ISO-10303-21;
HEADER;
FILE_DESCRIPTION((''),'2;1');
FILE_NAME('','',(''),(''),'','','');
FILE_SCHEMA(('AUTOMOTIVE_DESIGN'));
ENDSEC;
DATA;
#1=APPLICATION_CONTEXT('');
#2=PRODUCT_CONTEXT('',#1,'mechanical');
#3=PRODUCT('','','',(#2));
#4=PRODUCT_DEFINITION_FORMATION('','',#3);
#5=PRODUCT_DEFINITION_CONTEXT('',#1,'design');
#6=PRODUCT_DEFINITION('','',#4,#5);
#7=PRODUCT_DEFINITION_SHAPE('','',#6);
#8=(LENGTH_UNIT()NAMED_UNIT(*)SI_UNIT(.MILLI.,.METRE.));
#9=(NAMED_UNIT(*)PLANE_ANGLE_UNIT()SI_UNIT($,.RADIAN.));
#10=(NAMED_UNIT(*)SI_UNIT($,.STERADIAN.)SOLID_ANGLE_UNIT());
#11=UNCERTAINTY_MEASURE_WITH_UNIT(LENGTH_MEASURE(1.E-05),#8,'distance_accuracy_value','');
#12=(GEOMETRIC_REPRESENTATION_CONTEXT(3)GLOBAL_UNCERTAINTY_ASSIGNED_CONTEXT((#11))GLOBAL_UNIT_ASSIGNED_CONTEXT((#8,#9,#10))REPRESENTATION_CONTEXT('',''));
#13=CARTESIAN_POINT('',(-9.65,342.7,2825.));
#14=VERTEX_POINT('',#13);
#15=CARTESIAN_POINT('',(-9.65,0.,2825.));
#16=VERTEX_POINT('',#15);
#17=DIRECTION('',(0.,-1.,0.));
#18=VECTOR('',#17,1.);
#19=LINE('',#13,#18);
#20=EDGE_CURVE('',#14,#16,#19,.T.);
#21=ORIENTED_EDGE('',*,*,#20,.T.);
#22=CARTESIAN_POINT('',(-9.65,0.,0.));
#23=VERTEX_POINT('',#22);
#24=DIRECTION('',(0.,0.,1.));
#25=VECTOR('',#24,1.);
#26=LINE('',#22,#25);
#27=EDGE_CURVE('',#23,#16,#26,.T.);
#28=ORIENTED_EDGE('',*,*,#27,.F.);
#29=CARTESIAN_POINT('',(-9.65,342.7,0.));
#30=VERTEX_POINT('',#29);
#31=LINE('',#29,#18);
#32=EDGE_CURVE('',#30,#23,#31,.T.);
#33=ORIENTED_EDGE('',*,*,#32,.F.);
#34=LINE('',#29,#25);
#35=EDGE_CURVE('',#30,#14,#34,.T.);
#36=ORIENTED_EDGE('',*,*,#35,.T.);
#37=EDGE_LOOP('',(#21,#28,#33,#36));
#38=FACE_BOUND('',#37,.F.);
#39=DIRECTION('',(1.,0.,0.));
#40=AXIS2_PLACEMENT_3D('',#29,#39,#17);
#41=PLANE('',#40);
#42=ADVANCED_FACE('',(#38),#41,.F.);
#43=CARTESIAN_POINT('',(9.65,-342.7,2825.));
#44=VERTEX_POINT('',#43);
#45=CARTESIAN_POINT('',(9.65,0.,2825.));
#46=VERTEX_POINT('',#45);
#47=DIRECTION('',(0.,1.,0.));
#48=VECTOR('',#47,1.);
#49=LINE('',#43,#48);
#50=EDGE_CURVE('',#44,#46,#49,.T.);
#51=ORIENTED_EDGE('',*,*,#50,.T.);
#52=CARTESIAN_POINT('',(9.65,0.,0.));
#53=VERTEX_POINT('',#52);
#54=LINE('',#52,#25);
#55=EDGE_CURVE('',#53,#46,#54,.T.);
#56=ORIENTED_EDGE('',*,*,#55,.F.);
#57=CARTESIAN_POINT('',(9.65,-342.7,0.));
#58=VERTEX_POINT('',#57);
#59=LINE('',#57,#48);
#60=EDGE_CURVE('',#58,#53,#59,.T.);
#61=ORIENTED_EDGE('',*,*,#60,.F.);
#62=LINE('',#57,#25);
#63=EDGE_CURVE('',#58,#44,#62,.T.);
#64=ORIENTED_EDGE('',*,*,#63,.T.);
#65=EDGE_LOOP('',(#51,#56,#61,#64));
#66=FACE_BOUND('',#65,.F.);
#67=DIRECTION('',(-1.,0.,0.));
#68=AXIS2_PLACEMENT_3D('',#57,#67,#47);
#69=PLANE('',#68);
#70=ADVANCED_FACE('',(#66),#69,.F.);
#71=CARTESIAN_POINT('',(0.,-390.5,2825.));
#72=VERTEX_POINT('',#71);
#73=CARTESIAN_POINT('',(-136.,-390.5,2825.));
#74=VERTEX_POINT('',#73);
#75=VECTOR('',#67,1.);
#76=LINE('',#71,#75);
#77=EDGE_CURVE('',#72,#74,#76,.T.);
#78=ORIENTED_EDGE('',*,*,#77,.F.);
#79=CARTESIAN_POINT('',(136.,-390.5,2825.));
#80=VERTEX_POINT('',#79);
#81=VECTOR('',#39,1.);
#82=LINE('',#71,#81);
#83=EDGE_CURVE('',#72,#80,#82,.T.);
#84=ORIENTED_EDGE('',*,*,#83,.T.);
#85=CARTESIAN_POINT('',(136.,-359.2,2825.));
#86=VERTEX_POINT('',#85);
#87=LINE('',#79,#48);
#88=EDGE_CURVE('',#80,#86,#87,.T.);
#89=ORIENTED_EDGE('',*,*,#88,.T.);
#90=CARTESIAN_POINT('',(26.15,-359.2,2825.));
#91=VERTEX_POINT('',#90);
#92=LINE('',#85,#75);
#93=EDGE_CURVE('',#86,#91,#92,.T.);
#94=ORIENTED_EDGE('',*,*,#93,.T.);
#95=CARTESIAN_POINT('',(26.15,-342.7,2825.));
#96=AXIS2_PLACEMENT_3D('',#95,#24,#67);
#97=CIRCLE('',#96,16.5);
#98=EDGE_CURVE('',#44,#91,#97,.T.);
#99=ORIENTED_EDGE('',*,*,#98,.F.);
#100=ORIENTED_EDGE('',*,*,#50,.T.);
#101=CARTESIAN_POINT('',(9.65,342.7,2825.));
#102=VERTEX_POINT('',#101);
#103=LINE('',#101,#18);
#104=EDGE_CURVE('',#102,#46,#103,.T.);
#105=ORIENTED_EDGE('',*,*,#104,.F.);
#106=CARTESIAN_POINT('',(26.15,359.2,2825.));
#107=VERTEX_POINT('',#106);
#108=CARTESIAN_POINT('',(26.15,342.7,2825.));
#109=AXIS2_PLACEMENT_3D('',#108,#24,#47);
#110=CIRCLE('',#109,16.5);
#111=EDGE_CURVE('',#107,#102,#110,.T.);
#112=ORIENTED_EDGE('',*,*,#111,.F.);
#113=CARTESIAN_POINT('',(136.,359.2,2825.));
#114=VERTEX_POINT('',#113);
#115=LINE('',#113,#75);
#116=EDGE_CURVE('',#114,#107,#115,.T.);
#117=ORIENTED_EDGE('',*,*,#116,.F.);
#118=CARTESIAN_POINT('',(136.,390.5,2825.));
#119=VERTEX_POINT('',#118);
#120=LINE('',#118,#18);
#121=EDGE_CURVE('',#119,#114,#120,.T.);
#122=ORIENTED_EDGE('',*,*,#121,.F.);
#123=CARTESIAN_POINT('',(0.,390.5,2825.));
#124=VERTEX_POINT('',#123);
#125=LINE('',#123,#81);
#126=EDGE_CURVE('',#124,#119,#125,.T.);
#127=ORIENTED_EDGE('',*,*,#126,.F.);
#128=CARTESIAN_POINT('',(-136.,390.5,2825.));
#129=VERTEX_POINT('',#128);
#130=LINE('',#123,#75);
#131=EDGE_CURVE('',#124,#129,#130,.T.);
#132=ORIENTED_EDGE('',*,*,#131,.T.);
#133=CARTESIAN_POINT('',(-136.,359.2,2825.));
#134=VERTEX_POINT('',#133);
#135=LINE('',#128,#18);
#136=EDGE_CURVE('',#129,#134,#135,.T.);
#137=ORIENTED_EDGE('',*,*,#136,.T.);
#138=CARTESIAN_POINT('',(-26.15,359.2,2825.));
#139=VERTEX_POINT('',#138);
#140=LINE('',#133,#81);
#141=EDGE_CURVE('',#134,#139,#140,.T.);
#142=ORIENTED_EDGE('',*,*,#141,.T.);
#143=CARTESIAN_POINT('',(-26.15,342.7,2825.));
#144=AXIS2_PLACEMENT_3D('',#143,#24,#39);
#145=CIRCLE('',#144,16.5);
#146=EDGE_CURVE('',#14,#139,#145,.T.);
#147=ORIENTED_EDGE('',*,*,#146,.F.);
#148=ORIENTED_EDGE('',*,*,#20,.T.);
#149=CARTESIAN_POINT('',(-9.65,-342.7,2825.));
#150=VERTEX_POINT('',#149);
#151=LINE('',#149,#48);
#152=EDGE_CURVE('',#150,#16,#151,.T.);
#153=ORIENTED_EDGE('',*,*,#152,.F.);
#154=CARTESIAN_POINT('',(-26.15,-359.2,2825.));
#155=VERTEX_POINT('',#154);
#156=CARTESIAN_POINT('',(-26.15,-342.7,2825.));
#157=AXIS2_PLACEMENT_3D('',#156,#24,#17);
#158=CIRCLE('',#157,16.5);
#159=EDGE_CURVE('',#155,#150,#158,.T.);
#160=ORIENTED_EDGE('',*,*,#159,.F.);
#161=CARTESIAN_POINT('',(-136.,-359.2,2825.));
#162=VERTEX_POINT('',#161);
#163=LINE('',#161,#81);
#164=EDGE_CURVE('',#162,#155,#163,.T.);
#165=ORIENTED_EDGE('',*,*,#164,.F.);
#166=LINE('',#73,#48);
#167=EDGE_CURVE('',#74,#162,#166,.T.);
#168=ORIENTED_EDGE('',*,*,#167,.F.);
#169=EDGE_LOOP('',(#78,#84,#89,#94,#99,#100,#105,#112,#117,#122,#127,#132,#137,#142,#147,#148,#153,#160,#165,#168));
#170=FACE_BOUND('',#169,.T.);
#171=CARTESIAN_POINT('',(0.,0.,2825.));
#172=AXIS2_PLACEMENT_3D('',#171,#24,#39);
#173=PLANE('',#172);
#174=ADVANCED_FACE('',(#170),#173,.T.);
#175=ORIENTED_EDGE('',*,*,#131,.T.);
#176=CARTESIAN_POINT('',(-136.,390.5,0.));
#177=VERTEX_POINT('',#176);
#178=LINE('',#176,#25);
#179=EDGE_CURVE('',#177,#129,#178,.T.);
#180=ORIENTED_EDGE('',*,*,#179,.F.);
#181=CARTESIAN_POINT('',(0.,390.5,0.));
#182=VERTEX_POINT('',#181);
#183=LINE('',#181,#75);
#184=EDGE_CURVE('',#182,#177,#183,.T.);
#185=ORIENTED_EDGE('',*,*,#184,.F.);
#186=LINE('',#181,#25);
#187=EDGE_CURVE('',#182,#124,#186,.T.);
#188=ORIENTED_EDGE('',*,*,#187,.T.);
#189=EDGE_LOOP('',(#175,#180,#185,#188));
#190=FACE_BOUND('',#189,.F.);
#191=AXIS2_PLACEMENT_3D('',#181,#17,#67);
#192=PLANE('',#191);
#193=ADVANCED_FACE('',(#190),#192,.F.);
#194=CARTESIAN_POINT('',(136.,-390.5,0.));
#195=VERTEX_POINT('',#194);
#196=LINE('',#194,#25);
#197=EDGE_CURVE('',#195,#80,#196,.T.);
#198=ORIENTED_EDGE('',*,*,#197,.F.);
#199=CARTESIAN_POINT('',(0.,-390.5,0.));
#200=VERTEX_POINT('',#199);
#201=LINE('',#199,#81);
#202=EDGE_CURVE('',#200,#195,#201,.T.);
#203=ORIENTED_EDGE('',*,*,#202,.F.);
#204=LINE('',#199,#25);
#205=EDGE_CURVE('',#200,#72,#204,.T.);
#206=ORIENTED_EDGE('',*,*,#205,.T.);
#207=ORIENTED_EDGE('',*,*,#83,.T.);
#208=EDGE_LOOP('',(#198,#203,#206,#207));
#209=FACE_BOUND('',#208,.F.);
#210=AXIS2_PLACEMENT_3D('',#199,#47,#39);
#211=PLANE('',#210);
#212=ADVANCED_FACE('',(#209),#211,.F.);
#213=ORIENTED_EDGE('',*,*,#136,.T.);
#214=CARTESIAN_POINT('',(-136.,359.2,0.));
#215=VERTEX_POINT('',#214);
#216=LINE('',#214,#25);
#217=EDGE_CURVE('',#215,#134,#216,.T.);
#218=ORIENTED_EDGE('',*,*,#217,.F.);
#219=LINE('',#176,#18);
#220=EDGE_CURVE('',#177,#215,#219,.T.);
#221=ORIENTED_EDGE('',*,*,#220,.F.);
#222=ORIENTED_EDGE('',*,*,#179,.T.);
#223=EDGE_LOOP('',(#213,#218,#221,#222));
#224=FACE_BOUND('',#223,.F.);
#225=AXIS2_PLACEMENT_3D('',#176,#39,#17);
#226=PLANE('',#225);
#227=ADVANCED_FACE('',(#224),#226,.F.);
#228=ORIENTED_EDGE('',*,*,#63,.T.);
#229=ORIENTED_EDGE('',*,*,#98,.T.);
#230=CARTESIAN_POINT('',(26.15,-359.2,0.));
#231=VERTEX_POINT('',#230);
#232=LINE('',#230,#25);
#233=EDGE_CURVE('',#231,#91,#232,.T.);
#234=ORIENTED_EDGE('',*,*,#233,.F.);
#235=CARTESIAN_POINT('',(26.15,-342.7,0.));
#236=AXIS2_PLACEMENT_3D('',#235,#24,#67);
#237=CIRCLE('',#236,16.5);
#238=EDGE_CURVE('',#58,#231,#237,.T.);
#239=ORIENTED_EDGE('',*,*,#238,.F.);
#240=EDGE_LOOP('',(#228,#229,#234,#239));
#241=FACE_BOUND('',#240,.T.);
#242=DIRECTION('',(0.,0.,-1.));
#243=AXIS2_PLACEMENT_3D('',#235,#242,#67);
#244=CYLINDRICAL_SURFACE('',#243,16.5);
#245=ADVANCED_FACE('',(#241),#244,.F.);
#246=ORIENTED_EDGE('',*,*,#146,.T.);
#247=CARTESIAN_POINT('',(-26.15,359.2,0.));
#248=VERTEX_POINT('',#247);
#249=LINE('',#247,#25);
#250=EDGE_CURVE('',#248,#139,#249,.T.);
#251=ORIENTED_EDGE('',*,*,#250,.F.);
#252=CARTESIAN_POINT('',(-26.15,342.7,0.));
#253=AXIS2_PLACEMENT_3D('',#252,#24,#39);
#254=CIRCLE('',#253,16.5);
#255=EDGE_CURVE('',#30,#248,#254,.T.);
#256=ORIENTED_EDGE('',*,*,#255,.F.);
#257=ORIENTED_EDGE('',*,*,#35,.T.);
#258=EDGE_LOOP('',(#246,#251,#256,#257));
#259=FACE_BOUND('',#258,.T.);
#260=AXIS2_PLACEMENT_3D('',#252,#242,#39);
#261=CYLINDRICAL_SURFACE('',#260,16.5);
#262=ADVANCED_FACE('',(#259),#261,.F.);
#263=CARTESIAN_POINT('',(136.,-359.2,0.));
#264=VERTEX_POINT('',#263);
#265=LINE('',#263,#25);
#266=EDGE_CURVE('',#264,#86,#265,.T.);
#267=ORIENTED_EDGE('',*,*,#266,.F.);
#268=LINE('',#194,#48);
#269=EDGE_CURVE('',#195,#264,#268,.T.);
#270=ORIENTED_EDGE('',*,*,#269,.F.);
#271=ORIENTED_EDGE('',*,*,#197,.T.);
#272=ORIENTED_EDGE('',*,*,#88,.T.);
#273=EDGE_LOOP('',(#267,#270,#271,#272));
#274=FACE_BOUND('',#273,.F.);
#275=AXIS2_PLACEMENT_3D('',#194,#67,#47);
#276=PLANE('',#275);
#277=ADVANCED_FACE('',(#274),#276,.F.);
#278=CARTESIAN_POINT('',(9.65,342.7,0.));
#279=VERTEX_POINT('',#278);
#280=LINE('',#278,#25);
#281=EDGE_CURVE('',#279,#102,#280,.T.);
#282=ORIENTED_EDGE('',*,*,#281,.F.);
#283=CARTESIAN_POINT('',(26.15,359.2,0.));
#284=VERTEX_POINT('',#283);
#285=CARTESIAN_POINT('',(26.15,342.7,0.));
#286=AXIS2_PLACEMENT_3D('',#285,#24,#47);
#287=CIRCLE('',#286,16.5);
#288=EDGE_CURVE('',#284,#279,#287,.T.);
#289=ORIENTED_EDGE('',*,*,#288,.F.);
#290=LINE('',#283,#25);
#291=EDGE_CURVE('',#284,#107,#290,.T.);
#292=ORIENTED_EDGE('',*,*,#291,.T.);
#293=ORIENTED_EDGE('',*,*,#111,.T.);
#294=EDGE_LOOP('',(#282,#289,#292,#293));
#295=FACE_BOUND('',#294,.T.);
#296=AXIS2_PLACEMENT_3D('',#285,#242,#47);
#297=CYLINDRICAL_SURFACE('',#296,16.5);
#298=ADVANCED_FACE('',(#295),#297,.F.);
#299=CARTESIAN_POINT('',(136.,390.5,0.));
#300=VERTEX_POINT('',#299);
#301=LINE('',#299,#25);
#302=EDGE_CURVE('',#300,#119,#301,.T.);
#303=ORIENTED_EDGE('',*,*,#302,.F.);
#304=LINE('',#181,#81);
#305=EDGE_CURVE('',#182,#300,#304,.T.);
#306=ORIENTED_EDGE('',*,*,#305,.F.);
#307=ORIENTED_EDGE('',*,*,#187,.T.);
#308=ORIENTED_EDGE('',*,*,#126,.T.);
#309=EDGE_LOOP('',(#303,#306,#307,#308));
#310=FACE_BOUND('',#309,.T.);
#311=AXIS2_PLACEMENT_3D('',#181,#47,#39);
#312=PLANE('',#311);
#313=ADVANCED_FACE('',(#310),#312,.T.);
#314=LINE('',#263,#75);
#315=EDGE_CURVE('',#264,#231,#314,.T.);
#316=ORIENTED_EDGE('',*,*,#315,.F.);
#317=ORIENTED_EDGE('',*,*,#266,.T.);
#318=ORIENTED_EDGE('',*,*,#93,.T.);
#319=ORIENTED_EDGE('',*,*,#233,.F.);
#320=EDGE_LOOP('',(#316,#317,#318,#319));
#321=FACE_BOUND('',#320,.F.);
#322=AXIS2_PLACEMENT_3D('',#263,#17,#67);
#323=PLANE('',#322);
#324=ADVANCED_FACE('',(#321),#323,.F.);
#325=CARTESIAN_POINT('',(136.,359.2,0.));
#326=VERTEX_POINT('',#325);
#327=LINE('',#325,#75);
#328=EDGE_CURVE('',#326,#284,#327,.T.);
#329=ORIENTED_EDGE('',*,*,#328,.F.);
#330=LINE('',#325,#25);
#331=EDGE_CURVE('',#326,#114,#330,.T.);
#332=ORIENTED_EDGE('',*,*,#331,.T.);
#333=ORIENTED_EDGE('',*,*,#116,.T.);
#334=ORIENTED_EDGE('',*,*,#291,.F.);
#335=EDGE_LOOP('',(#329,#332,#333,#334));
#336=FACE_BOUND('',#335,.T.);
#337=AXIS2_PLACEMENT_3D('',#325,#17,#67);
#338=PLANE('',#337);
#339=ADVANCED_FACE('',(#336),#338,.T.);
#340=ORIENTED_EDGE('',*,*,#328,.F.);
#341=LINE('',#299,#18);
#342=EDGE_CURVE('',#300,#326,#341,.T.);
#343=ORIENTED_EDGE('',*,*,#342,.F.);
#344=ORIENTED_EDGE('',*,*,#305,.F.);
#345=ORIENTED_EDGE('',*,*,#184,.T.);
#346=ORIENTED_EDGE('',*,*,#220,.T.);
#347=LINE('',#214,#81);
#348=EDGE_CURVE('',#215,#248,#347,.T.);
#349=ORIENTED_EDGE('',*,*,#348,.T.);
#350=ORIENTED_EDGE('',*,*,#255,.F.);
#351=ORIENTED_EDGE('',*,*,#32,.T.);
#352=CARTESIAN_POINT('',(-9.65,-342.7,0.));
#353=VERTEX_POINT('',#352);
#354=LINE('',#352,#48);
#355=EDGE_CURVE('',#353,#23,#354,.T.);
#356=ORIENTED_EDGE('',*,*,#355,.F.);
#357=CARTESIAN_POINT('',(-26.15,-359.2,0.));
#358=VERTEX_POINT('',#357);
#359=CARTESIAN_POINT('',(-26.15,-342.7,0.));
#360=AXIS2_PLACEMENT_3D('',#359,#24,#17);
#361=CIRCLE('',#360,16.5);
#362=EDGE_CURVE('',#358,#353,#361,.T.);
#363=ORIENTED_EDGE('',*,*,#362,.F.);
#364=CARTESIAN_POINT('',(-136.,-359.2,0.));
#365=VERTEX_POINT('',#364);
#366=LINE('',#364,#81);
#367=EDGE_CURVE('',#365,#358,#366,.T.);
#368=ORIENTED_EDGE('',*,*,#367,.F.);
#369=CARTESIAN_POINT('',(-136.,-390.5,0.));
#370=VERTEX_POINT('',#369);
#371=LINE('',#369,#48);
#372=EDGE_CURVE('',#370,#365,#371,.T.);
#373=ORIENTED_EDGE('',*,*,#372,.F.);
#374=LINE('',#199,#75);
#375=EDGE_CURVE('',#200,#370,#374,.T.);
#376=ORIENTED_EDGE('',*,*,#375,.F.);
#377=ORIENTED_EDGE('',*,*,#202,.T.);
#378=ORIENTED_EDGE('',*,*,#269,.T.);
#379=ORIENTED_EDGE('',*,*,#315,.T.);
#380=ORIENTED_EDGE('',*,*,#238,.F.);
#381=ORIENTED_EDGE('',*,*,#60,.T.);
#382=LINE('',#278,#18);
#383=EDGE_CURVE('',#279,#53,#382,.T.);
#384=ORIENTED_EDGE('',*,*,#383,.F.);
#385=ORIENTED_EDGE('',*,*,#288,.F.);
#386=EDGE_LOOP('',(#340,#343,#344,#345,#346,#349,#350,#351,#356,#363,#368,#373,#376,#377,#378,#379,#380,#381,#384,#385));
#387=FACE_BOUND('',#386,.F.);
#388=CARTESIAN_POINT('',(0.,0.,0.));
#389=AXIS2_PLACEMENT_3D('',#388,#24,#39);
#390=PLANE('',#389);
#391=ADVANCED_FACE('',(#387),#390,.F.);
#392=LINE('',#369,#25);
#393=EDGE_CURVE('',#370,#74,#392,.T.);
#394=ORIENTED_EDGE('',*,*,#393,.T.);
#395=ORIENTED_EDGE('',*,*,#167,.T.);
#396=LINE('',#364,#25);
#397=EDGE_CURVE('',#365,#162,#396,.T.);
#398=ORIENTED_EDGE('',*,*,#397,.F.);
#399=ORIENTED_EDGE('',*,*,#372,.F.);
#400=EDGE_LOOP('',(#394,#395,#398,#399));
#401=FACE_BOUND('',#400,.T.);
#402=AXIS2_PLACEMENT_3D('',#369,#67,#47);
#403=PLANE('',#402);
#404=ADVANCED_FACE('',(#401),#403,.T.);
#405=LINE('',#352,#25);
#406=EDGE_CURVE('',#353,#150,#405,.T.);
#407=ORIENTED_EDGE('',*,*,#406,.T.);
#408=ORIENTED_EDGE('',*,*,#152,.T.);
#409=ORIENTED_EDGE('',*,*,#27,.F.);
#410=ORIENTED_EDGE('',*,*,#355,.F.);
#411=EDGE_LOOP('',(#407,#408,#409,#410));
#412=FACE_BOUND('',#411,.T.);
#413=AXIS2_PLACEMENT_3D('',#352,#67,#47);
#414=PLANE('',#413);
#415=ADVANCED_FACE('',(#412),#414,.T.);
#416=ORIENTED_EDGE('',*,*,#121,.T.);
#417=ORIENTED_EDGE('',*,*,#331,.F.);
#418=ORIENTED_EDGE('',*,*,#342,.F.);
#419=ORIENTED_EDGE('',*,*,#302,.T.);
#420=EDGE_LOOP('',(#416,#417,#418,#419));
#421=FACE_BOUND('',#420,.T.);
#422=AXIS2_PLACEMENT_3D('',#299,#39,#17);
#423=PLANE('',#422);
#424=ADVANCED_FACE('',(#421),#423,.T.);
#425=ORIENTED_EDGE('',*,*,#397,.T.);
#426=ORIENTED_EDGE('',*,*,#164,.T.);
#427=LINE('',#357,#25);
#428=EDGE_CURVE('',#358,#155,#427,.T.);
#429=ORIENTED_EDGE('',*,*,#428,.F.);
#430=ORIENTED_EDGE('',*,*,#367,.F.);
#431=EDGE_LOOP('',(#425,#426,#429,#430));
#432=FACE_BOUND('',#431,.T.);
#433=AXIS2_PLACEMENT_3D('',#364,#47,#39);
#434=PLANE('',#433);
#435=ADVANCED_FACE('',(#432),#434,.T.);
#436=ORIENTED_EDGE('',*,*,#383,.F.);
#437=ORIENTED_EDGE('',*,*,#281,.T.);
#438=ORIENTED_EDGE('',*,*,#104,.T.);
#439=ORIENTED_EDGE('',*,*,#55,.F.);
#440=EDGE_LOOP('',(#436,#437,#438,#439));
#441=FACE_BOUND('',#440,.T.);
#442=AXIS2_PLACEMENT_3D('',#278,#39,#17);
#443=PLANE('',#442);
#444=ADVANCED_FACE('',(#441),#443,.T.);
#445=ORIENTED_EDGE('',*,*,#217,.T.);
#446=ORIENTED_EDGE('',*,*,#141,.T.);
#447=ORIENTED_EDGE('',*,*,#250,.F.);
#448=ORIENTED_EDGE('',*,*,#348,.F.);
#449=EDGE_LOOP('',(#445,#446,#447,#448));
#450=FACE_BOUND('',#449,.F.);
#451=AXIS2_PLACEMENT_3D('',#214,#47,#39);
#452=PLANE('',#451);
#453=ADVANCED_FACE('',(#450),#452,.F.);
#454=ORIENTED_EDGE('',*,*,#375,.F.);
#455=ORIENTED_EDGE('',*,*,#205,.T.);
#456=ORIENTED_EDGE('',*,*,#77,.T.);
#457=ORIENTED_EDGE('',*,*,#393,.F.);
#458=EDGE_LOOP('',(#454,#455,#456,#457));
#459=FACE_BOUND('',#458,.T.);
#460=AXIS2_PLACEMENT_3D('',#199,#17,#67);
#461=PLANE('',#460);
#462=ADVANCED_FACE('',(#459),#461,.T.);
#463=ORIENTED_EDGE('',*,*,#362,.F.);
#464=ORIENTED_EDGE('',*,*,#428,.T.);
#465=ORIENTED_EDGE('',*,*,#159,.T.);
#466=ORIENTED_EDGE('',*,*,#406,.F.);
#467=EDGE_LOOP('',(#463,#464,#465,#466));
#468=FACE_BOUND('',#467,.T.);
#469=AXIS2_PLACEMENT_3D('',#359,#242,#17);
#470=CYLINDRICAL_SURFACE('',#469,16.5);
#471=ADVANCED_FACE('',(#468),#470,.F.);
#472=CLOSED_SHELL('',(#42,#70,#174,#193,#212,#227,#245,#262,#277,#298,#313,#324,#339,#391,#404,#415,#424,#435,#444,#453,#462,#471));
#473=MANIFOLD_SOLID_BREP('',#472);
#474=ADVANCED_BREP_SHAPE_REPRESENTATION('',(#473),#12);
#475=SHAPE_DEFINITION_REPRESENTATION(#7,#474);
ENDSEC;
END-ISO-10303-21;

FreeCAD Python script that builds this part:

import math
import FreeCAD as App
import Part
import Sketcher
from FreeCAD import Vector

doc = App.newDocument("Part")
params = doc.addObject("Spreadsheet::Sheet", "Params")
for row, (alias, value) in enumerate([
    ("sketch1_radius", "16.5 mm"),
    ("sketch1_height", "31.3 mm"),
    ("pad1_length", "2825 mm"),
], start=1):
    params.set(f"A{row}", alias)
    params.set(f"B{row}", "=" + value)
    params.setAlias(f"B{row}", alias)

body = doc.addObject("PartDesign::Body", "Body")

# Sketch on XY plane
sketch1 = body.newObject("Sketcher::SketchObject", "Sketch")
sketch1.AttachmentSupport = (doc.getObject("XY_Plane"), [""])
sketch1.MapMode = "FlatFace"
sketch1.addGeometry([
    Part.LineSegment(Vector(-136, -359.2, 0), Vector(-136, -390.5, 0)),  # 0
    Part.LineSegment(Vector(-136, -390.5, 0), Vector(136, -390.5, 0)),  # 1
    Part.LineSegment(Vector(136, -390.5, 0), Vector(136, -359.2, 0)),  # 2
    Part.LineSegment(Vector(136, -359.2, 0), Vector(26.15, -359.2, 0)),  # 3
    Part.ArcOfCircle(Part.Circle(Vector(26.15, -342.7, 0), Vector(0, 0, 1), 16.5), math.radians(180), math.radians(270)),  # 4
    Part.LineSegment(Vector(9.65, -342.7, 0), Vector(9.65, 342.7, 0)),  # 5
    Part.ArcOfCircle(Part.Circle(Vector(26.15, 342.7, 0), Vector(0, 0, 1), 16.5), math.radians(90), math.radians(180)),  # 6
    Part.LineSegment(Vector(26.15, 359.2, 0), Vector(136, 359.2, 0)),  # 7
    Part.LineSegment(Vector(136, 359.2, 0), Vector(136, 390.5, 0)),  # 8
    Part.LineSegment(Vector(136, 390.5, 0), Vector(-136, 390.5, 0)),  # 9
    Part.LineSegment(Vector(-136, 390.5, 0), Vector(-136, 359.2, 0)),  # 10
    Part.LineSegment(Vector(-136, 359.2, 0), Vector(-26.15, 359.2, 0)),  # 11
    Part.ArcOfCircle(Part.Circle(Vector(-26.15, 342.7, 0), Vector(0, 0, 1), 16.5), math.radians(0), math.radians(90)),  # 12
    Part.LineSegment(Vector(-9.65, 342.7, 0), Vector(-9.65, -342.7, 0)),  # 13
    Part.ArcOfCircle(Part.Circle(Vector(-26.15, -342.7, 0), Vector(0, 0, 1), 16.5), math.radians(-90), math.radians(0)),  # 14
    Part.LineSegment(Vector(-26.15, -359.2, 0), Vector(-136, -359.2, 0)),  # 15
], False)
sketch1.addConstraint([
    Sketcher.Constraint("Coincident", 0, 2, 1, 1),
    Sketcher.Constraint("Coincident", 1, 2, 2, 1),
    Sketcher.Constraint("Coincident", 2, 2, 3, 1),
    Sketcher.Constraint("Tangent", 3, 2, 4, 2),
    Sketcher.Constraint("Tangent", 4, 1, 5, 1),
    Sketcher.Constraint("Tangent", 5, 2, 6, 2),
    Sketcher.Constraint("Tangent", 6, 1, 7, 1),
    Sketcher.Constraint("Coincident", 7, 2, 8, 1),
    Sketcher.Constraint("Coincident", 8, 2, 9, 1),
    Sketcher.Constraint("Coincident", 9, 2, 10, 1),
    Sketcher.Constraint("Coincident", 10, 2, 11, 1),
    Sketcher.Constraint("Tangent", 11, 2, 12, 2),
    Sketcher.Constraint("Tangent", 12, 1, 13, 1),
    Sketcher.Constraint("Tangent", 13, 2, 14, 2),
    Sketcher.Constraint("Tangent", 14, 1, 15, 1),
    Sketcher.Constraint("Coincident", 15, 2, 0, 1),
    Sketcher.Constraint("Vertical", 0),
    Sketcher.Constraint("Horizontal", 1),
    Sketcher.Constraint("Vertical", 2),
    Sketcher.Constraint("Horizontal", 3),
    Sketcher.Constraint("Vertical", 5),
    Sketcher.Constraint("Horizontal", 7),
    Sketcher.Constraint("Vertical", 8),
    Sketcher.Constraint("Horizontal", 9),
    Sketcher.Constraint("Vertical", 10),
    Sketcher.Constraint("Horizontal", 11),
    Sketcher.Constraint("Vertical", 13),
    Sketcher.Constraint("Horizontal", 15),
    Sketcher.Constraint("Equal", 4, 6),
    Sketcher.Constraint("Equal", 6, 12),
    Sketcher.Constraint("Equal", 12, 14),
    Sketcher.Constraint("Symmetric", 4, 3, 12, 3, -1, 1),
    Sketcher.Constraint("Symmetric", 0, 2, 8, 2, -1, 1),
    Sketcher.Constraint("Symmetric", 7, 2, 10, 2, -2),
    Sketcher.Constraint("Symmetric", 2, 2, 15, 2, -2),
    Sketcher.Constraint("Radius", 4, 16.5),
    Sketcher.Constraint("DistanceY", 0, 2, 0, 1, 31.3),
    Sketcher.Constraint("DistanceX", 0, 2, -1, 1, 136.0),
    Sketcher.Constraint("DistanceY", 0, 2, -1, 1, 390.5),
    Sketcher.Constraint("DistanceX", -1, 1, 4, 1, 9.65),
])
sketch1.setExpression("Constraints[35]", "Params.sketch1_radius")
sketch1.setExpression("Constraints[36]", "Params.sketch1_height")
pad1 = body.newObject("PartDesign::Pad", "Pad")
pad1.Profile = sketch1
pad1.setExpression("Length", "Params.pad1_length")

doc.recompute()
